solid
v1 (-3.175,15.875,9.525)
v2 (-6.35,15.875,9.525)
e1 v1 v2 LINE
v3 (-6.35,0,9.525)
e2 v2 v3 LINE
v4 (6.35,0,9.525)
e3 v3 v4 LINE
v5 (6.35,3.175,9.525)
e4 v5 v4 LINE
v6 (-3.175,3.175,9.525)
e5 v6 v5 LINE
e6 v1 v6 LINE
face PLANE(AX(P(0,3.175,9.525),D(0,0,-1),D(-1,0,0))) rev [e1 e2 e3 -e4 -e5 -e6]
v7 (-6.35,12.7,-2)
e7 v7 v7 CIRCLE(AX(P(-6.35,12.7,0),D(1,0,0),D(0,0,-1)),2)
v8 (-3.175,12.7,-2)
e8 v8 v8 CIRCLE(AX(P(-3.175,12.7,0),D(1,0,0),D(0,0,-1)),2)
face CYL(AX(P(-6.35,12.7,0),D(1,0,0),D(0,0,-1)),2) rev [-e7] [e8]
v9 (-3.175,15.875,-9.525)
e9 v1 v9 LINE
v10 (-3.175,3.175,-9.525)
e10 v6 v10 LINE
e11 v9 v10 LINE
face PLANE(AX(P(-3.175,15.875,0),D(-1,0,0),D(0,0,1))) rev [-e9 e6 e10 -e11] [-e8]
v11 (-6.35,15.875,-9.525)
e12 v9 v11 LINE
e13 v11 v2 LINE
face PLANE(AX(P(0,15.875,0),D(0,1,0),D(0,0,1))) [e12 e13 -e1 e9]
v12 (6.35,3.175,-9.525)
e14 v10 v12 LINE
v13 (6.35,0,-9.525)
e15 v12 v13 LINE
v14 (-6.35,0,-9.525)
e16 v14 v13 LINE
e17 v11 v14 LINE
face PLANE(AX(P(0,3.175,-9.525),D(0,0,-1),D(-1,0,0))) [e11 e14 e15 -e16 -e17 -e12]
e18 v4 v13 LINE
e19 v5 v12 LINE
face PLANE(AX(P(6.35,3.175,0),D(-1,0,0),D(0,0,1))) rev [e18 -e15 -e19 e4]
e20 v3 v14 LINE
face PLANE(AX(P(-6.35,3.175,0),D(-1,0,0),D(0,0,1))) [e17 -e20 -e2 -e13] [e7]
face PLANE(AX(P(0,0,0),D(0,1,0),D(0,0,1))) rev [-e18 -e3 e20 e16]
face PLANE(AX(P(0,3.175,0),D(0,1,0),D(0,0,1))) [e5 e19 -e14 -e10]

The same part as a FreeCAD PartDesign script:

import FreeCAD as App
import Part
import Sketcher
from FreeCAD import Vector
Q = App.Units.Quantity


def add_polygon(sketch, points):
    """Adds a closed chain of lines whose ends are joined by coincident constraints."""
    first, n = sketch.GeometryCount, len(points)
    for a, b in zip(points, points[1:] + points[:1]):
        sketch.addGeometry(Part.LineSegment(App.Vector(*a, 0), App.Vector(*b, 0)), False)
    for i in range(n):
        sketch.addConstraint(Sketcher.Constraint("Coincident", first + i, 2, first + (i + 1) % n, 1))

doc = App.newDocument("Part")
body = doc.addObject("PartDesign::Body", "Body")

# Sketch on XZ plane
sketch1 = body.newObject("Sketcher::SketchObject", "Sketch")
sketch1.AttachmentSupport = (doc.getObject("XZ_Plane"), [""])
sketch1.MapMode = "FlatFace"
add_polygon(sketch1, [(6.35, 9.525), (6.35, -9.525), (-6.35, -9.525), (-6.35, 9.525)])  # lines 0-3
sketch1.addConstraint(Sketcher.Constraint("Vertical", 0))
sketch1.addConstraint(Sketcher.Constraint("Horizontal", 1))
sketch1.addConstraint(Sketcher.Constraint("Vertical", 2))
sketch1.addConstraint(Sketcher.Constraint("Horizontal", 3))
sketch1.addConstraint(Sketcher.Constraint("Symmetric", 0, 2, 2, 2, -1, 1))
sketch1.addConstraint(Sketcher.Constraint("DistanceX", 1, 2, 1, 1, Q("0.5 in")))
sketch1.addConstraint(Sketcher.Constraint("DistanceY", 0, 2, 0, 1, Q("0.75 in")))
pad1 = body.newObject("PartDesign::Pad", "Pad")
pad1.Profile = sketch1
pad1.Length = Q("0.125 in")
pad1.Reversed = True

# Sketch on XZ plane
sketch2 = body.newObject("Sketcher::SketchObject", "Sketch001")
sketch2.AttachmentSupport = (doc.getObject("XZ_Plane"), [""])
sketch2.MapMode = "FlatFace"
sketch2.AttachmentOffset = App.Placement(Vector(0, 0, -0.125 * 25.4), App.Rotation())
add_polygon(sketch2, [(-6.35, -9.525), (-6.35, 9.525), (-3.175, 9.525), (-3.175, -9.525)])  # lines 0-3
sketch2.addConstraint(Sketcher.Constraint("Vertical", 0))
sketch2.addConstraint(Sketcher.Constraint("Horizontal", 1))
sketch2.addConstraint(Sketcher.Constraint("Vertical", 2))
sketch2.addConstraint(Sketcher.Constraint("Horizontal", 3))
sketch2.addConstraint(Sketcher.Constraint("DistanceY", 0, 1, 0, 2, Q("0.75 in")))
sketch2.addConstraint(Sketcher.Constraint("DistanceX", 1, 1, 1, 2, Q("0.125 in")))
sketch2.addConstraint(Sketcher.Constraint("DistanceX", 0, 2, -1, 1, Q("0.25 in")))
sketch2.addConstraint(Sketcher.Constraint("DistanceY", -1, 1, 0, 2, Q("0.375 in")))
pad2 = body.newObject("PartDesign::Pad", "Pad001")
pad2.Profile = sketch2
pad2.Length = Q("0.5 in")
pad2.Reversed = True

# Sketch on YZ plane
sketch3 = body.newObject("Sketcher::SketchObject", "Sketch002")
sketch3.AttachmentSupport = (doc.getObject("YZ_Plane"), [""])
sketch3.MapMode = "FlatFace"
sketch3.AttachmentOffset = App.Placement(Vector(0, 0, -0.125 * 25.4), App.Rotation())
sketch3.addGeometry(Part.Circle(Vector(12.7, 0, 0), Vector(0, 0, 1), 2), False)
sketch3.addConstraint(Sketcher.Constraint("PointOnObject", 0, 3, -1))
sketch3.addConstraint(Sketcher.Constraint("DistanceX", -1, 1, 0, 3, Q("0.5 in")))
sketch3.addConstraint(Sketcher.Constraint("Diameter", 0, 4.0))
pocket1 = body.newObject("PartDesign::Pocket", "Pocket")
pocket1.Profile = sketch3
pocket1.Type = "ThroughAll"

doc.recompute()
